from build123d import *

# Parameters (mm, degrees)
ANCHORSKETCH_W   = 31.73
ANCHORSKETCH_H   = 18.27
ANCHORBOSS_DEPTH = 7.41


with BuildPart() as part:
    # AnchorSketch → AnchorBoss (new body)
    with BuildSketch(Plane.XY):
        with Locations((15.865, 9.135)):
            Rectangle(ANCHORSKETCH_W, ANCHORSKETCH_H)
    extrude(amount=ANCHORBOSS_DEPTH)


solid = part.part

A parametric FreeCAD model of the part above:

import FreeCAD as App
import Part
import Sketcher
from FreeCAD import Vector
Q = App.Units.Quantity

doc = App.newDocument("Part")
body = doc.addObject("PartDesign::Body", "Body")

sketch1 = body.newObject("Sketcher::SketchObject", "Sketch")
sketch1.AttachmentSupport = (doc.getObject("XY_Plane"), [""])
sketch1.MapMode = "FlatFace"
sketch1.addGeometry(Part.LineSegment(Vector(0, 18, 0), Vector(0, 0, 0)), False)
sketch1.addGeometry(Part.LineSegment(Vector(0, 0, 0), Vector(32, 0, 0)), False)
sketch1.addGeometry(Part.LineSegment(Vector(32, 0, 0), Vector(32, 18, 0)), False)
sketch1.addGeometry(Part.LineSegment(Vector(32, 18, 0), Vector(0, 18, 0)), False)
sketch1.addConstraint(Sketcher.Constraint("Coincident", 0, 2, 1, 1))
sketch1.addConstraint(Sketcher.Constraint("Coincident", 1, 2, 2, 1))
sketch1.addConstraint(Sketcher.Constraint("Coincident", 2, 2, 3, 1))
sketch1.addConstraint(Sketcher.Constraint("Coincident", 3, 2, 0, 1))
sketch1.addConstraint(Sketcher.Constraint("Vertical", 0))
sketch1.addConstraint(Sketcher.Constraint("Horizontal", 1))
sketch1.addConstraint(Sketcher.Constraint("Vertical", 2))
sketch1.addConstraint(Sketcher.Constraint("Horizontal", 3))
sketch1.addConstraint(Sketcher.Constraint("Coincident", 0, 2, -1, 1))
sketch1.addConstraint(Sketcher.Constraint("DistanceX", 1, 1, 1, 2, Q("31.73 mm")))
sketch1.addConstraint(Sketcher.Constraint("DistanceY", 0, 2, 0, 1, Q("18.27 mm")))
pad1 = body.newObject("PartDesign::Pad", "Pad")
pad1.Profile = sketch1
pad1.Length = 7.41

doc.recompute()
